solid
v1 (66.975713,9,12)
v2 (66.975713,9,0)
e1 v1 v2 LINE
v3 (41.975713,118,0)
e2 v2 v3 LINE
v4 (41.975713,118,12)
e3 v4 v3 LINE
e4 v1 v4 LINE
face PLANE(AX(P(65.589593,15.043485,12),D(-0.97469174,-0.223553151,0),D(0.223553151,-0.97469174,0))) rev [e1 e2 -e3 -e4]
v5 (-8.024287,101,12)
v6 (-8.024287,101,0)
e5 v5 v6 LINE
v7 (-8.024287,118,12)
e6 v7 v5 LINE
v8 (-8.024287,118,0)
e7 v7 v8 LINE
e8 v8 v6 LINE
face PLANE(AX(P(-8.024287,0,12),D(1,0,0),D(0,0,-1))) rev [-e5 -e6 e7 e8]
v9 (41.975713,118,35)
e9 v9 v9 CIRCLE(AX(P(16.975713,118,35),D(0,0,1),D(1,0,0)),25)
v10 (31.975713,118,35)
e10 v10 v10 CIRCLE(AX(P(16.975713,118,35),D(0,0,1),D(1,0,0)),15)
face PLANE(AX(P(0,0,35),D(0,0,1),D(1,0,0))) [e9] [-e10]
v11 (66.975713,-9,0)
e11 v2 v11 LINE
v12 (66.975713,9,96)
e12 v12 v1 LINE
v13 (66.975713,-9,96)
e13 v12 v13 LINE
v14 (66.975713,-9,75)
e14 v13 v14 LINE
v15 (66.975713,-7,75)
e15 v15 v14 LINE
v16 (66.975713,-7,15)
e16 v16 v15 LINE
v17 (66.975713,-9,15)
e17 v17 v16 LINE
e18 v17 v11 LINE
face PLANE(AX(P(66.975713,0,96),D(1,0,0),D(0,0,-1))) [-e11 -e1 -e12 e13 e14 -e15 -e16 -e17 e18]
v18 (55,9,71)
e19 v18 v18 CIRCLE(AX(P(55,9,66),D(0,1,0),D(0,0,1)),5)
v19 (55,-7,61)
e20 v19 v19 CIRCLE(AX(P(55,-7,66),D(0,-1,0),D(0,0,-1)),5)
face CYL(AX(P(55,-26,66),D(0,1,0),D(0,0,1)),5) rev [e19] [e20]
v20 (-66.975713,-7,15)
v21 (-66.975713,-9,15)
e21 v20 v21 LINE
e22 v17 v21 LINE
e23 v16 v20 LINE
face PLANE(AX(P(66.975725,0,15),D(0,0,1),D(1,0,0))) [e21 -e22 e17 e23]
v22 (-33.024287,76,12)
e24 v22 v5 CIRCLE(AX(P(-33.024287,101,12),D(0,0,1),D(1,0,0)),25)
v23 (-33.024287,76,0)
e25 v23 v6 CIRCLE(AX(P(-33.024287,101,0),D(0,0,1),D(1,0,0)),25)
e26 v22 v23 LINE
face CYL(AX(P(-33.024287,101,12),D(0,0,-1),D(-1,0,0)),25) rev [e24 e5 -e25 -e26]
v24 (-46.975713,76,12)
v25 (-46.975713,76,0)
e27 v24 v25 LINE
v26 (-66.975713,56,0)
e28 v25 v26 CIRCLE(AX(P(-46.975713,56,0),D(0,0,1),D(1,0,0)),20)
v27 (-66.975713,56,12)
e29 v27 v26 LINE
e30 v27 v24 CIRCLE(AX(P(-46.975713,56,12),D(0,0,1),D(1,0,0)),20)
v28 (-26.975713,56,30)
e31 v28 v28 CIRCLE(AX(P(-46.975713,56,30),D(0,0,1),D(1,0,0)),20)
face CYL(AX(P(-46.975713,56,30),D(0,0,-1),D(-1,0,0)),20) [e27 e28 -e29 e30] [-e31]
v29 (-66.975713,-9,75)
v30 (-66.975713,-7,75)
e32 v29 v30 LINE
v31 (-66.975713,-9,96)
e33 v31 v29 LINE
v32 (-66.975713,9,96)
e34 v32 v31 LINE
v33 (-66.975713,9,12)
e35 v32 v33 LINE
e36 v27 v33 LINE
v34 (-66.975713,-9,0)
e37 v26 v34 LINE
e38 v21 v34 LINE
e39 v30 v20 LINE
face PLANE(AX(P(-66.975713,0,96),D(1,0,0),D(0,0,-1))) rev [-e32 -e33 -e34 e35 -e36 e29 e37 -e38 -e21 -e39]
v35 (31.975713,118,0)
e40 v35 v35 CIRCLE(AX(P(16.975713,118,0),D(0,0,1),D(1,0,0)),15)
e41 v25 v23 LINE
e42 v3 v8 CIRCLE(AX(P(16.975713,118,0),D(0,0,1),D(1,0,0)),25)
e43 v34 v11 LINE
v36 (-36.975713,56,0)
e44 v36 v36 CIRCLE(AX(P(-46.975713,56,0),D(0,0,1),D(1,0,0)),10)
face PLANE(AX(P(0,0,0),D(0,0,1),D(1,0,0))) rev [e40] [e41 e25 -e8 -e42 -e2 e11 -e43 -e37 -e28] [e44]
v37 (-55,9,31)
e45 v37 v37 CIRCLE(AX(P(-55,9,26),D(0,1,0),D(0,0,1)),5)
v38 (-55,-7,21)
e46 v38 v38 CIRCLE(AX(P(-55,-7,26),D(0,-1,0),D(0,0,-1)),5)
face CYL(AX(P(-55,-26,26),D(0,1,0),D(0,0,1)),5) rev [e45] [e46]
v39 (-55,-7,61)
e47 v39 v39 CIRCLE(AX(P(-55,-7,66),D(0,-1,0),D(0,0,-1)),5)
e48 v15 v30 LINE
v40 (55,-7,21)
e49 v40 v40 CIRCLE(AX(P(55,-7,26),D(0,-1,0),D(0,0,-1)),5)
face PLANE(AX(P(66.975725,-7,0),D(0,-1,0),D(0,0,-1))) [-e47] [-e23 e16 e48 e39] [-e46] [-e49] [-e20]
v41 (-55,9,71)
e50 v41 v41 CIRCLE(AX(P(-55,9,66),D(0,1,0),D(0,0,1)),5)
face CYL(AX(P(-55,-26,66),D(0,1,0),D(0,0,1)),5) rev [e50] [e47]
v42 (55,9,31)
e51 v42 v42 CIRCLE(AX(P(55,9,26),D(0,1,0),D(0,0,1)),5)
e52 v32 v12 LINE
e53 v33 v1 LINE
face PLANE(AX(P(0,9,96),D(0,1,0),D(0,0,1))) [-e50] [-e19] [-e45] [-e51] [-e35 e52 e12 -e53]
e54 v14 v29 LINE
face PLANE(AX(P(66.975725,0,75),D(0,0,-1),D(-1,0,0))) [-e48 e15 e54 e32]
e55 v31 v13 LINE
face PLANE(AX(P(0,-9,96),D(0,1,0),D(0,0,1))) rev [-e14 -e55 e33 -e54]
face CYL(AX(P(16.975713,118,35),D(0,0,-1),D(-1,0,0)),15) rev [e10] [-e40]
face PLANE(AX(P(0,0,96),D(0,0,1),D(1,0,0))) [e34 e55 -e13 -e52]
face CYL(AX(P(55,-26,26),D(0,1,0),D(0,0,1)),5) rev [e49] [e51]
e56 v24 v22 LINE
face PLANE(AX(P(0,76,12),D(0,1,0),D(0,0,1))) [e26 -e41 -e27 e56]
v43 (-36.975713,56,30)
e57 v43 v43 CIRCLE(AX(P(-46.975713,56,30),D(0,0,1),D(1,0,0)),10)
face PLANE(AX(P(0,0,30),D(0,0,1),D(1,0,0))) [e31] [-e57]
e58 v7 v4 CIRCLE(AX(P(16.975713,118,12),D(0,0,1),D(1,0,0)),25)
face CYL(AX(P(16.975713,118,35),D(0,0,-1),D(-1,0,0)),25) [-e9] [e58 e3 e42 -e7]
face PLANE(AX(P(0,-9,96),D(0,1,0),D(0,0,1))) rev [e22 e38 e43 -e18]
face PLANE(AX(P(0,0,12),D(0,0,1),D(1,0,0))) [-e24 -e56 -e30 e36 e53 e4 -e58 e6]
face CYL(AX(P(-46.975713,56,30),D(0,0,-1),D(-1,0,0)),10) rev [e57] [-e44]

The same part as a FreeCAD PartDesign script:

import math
import FreeCAD as App
import Part
import Sketcher

V = App.Vector


def add_polygon(sketch, points):
    """Adds a closed chain of lines whose ends are joined by coincident constraints."""
    first, n = sketch.GeometryCount, len(points)
    for a, b in zip(points, points[1:] + points[:1]):
        sketch.addGeometry(Part.LineSegment(App.Vector(*a, 0), App.Vector(*b, 0)), False)
    for i in range(n):
        sketch.addConstraint(Sketcher.Constraint("Coincident", first + i, 2, first + (i + 1) % n, 1))

doc = App.newDocument("Part")
body = doc.addObject("PartDesign::Body", "Body")

# Sketch on XY plane
sketch1 = body.newObject("Sketcher::SketchObject", "Sketch")
sketch1.AttachmentSupport = (doc.getObject("XY_Plane"), [""])
sketch1.MapMode = "FlatFace"
add_polygon(sketch1, [(-66.975713, 9), (-66.975713, -9), (66.975713, -9), (66.975713, 9)])  # lines 0-3
sketch1.addConstraint(Sketcher.Constraint("Vertical", 0))
sketch1.addConstraint(Sketcher.Constraint("Horizontal", 1))
sketch1.addConstraint(Sketcher.Constraint("Vertical", 2))
sketch1.addConstraint(Sketcher.Constraint("Horizontal", 3))
sketch1.addConstraint(Sketcher.Constraint("Symmetric", 0, 2, 2, 2, -1, 1))
sketch1.addConstraint(Sketcher.Constraint("DistanceY", 0, 2, 0, 1, 18.0))
sketch1.addConstraint(Sketcher.Constraint("DistanceX", 1, 1, 1, 2, 133.951426))
pad1 = body.newObject("PartDesign::Pad", "Pad")
pad1.Profile = sketch1
pad1.Length = 96

# Sketch on XY plane
sketch2 = body.newObject("Sketcher::SketchObject", "Sketch001")
sketch2.AttachmentSupport = (doc.getObject("XY_Plane"), [""])
sketch2.MapMode = "FlatFace"
sketch2.addGeometry(Part.LineSegment(V(-66.975713, 9, 0), V(66.975713, 9, 0)), False)
sketch2.addGeometry(Part.LineSegment(V(66.975713, 9, 0), V(41.975713, 118, 0)), False)
sketch2.addGeometry(Part.ArcOfCircle(Part.Circle(V(16.975713, 118, 0), V(0, 0, 1), 25), math.radians(180), math.radians(360)), False)
sketch2.addGeometry(Part.LineSegment(V(-8.024287, 118, 0), V(-8.024287, 101, 0)), False)
sketch2.addGeometry(Part.ArcOfCircle(Part.Circle(V(-33.024287, 101, 0), V(0, 0, 1), 25), math.radians(-90), math.radians(0)), False)
sketch2.addGeometry(Part.LineSegment(V(-33.024287, 76, 0), V(-46.975713, 76, 0)), False)
sketch2.addGeometry(Part.ArcOfCircle(Part.Circle(V(-46.975713, 56, 0), V(0, 0, 1), 20), math.radians(0), math.radians(90)), False)
sketch2.addGeometry(Part.ArcOfCircle(Part.Circle(V(-46.975713, 56, 0), V(0, 0, 1), 20), math.radians(180), math.radians(360)), False)
sketch2.addGeometry(Part.LineSegment(V(-66.975713, 56, 0), V(-66.975713, 9, 0)), False)
sketch2.addConstraint(Sketcher.Constraint("Coincident", 0, 2, 1, 1))
sketch2.addConstraint(Sketcher.Constraint("Coincident", 1, 2, 2, 2))
sketch2.addConstraint(Sketcher.Constraint("Tangent", 2, 1, 3, 1))
sketch2.addConstraint(Sketcher.Constraint("Tangent", 3, 2, 4, 2))
sketch2.addConstraint(Sketcher.Constraint("Tangent", 4, 1, 5, 1))
sketch2.addConstraint(Sketcher.Constraint("Tangent", 5, 2, 6, 2))
sketch2.addConstraint(Sketcher.Constraint("Tangent", 6, 1, 7, 2))
sketch2.addConstraint(Sketcher.Constraint("Tangent", 7, 1, 8, 1))
sketch2.addConstraint(Sketcher.Constraint("Coincident", 8, 2, 0, 1))
sketch2.addConstraint(Sketcher.Constraint("Horizontal", 0))
sketch2.addConstraint(Sketcher.Constraint("Vertical", 3))
sketch2.addConstraint(Sketcher.Constraint("Horizontal", 5))
sketch2.addConstraint(Sketcher.Constraint("Vertical", 8))
sketch2.addConstraint(Sketcher.Constraint("Equal", 2, 4))
sketch2.addConstraint(Sketcher.Constraint("Equal", 6, 7))
sketch2.addConstraint(Sketcher.Constraint("Horizontal", 2, 3, 1, 2))
sketch2.addConstraint(Sketcher.Constraint("Horizontal", 7, 3, 6, 1))
sketch2.addConstraint(Sketcher.Constraint("Radius", 2, 25.0))
sketch2.addConstraint(Sketcher.Constraint("Radius", 6, 20.0))
sketch2.addConstraint(Sketcher.Constraint("DistanceY", 3, 2, 3, 1, 17.0))
sketch2.addConstraint(Sketcher.Constraint("DistanceY", 8, 2, 8, 1, 47.0))
sketch2.addConstraint(Sketcher.Constraint("DistanceY", -1, 1, 2, 3, 118.0))
sketch2.addConstraint(Sketcher.Constraint("DistanceX", 2, 3, 0, 2, 50.0))
sketch2.addConstraint(Sketcher.Constraint("DistanceX", 0, 1, 0, 2, 133.951426))
sketch2.addConstraint(Sketcher.Constraint("DistanceX", -1, 1, 2, 3, 16.975713))
pad2 = body.newObject("PartDesign::Pad", "Pad001")
pad2.Profile = sketch2
pad2.Length = 12

# Sketch on XY plane
sketch3 = body.newObject("Sketcher::SketchObject", "Sketch002")
sketch3.AttachmentSupport = (doc.getObject("XY_Plane"), [""])
sketch3.MapMode = "FlatFace"
sketch3.addGeometry(Part.Circle(V(-46.975713, 56, 0), V(0, 0, 1), 20), False)
sketch3.addGeometry(Part.Circle(V(-46.975713, 56, 0), V(0, 0, 1), 10), False)
sketch3.addConstraint(Sketcher.Constraint("Coincident", 1, 3, 0, 3))
sketch3.addConstraint(Sketcher.Constraint("Diameter", 0, 40.0))
sketch3.addConstraint(Sketcher.Constraint("Diameter", 1, 20.0))
sketch3.addConstraint(Sketcher.Constraint("DistanceY", -1, 1, 0, 3, 56.0))
sketch3.addConstraint(Sketcher.Constraint("DistanceX", 0, 3, -1, 1, 46.975713))
pad3 = body.newObject("PartDesign::Pad", "Pad002")
pad3.Profile = sketch3
pad3.Length = 30

# Sketch on XY plane
sketch4 = body.newObject("Sketcher::SketchObject", "Sketch003")
sketch4.AttachmentSupport = (doc.getObject("XY_Plane"), [""])
sketch4.MapMode = "FlatFace"
sketch4.addGeometry(Part.Circle(V(16.975713, 118, 0), V(0, 0, 1), 25), False)
sketch4.addGeometry(Part.Circle(V(16.975713, 118, 0), V(0, 0, 1), 15), False)
sketch4.addConstraint(Sketcher.Constraint("Coincident", 1, 3, 0, 3))
sketch4.addConstraint(Sketcher.Constraint("Diameter", 0, 50.0))
sketch4.addConstraint(Sketcher.Constraint("Diameter", 1, 30.0))
sketch4.addConstraint(Sketcher.Constraint("DistanceY", -1, 1, 0, 3, 118.0))
sketch4.addConstraint(Sketcher.Constraint("DistanceX", -1, 1, 0, 3, 16.975713))
pad4 = body.newObject("PartDesign::Pad", "Pad003")
pad4.Profile = sketch4
pad4.Length = 35

# Sketch on YZ plane
sketch5 = body.newObject("Sketcher::SketchObject", "Sketch004")
sketch5.AttachmentSupport = (doc.getObject("YZ_Plane"), [""])
sketch5.MapMode = "FlatFace"
sketch5.AttachmentOffset = App.Placement(V(0, 0, 66.975713), App.Rotation())
add_polygon(sketch5, [(-7, 75), (-9, 75), (-9, 15), (-7, 15)])  # lines 0-3
sketch5.addConstraint(Sketcher.Constraint("Horizontal", 0))
sketch5.addConstraint(Sketcher.Constraint("Vertical", 1))
sketch5.addConstraint(Sketcher.Constraint("Horizontal", 2))
sketch5.addConstraint(Sketcher.Constraint("Vertical", 3))
sketch5.addConstraint(Sketcher.Constraint("DistanceX", 0, 2, 0, 1, 2.0))
sketch5.addConstraint(Sketcher.Constraint("DistanceY", 1, 2, 1, 1, 60.0))
sketch5.addConstraint(Sketcher.Constraint("DistanceX", 0, 2, -1, 1, 9.0))
sketch5.addConstraint(Sketcher.Constraint("DistanceY", -1, 1, 0, 2, 75.0))
pocket1 = body.newObject("PartDesign::Pocket", "Pocket")
pocket1.Profile = sketch5
pocket1.Type = "ThroughAll"
pocket1.Midplane = True

# Sketch on XZ plane
sketch6 = body.newObject("Sketcher::SketchObject", "Sketch005")
sketch6.AttachmentSupport = (doc.getObject("XZ_Plane"), [""])
sketch6.MapMode = "FlatFace"
sketch6.AttachmentOffset = App.Placement(V(0, 0, -9), App.Rotation())
sketch6.addGeometry(Part.Circle(V(55, 26, 0), V(0, 0, 1), 5), False)
sketch6.addGeometry(Part.Circle(V(55, 66, 0), V(0, 0, 1), 5), False)
sketch6.addGeometry(Part.Circle(V(-55, 66, 0), V(0, 0, 1), 5), False)
sketch6.addConstraint(Sketcher.Constraint("Equal", 0, 1))
sketch6.addConstraint(Sketcher.Constraint("Equal", 1, 2))
sketch6.addConstraint(Sketcher.Constraint("Symmetric", 1, 3, 2, 3, -2))
sketch6.addConstraint(Sketcher.Constraint("Vertical", 0, 3, 1, 3))
sketch6.addConstraint(Sketcher.Constraint("Diameter", 0, 10.0))
sketch6.addConstraint(Sketcher.Constraint("DistanceX", -1, 1, 0, 3, 55.0))
sketch6.addConstraint(Sketcher.Constraint("DistanceY", -1, 1, 0, 3, 26.0))
sketch6.addConstraint(Sketcher.Constraint("DistanceY", -1, 1, 1, 3, 66.0))
pocket2 = body.newObject("PartDesign::Pocket", "Pocket001")
pocket2.Profile = sketch6
pocket2.Length = 35
pocket2.Reversed = True

# Sketch on XZ plane
sketch7 = body.newObject("Sketcher::SketchObject", "Sketch006")
sketch7.AttachmentSupport = (doc.getObject("XZ_Plane"), [""])
sketch7.MapMode = "FlatFace"
sketch7.AttachmentOffset = App.Placement(V(0, 0, -9), App.Rotation())
sketch7.addGeometry(Part.Circle(V(-55, 26, 0), V(0, 0, 1), 5), False)
sketch7.addConstraint(Sketcher.Constraint("Diameter", 0, 10.0))
sketch7.addConstraint(Sketcher.Constraint("DistanceX", 0, 3, -1, 1, 55.0))
sketch7.addConstraint(Sketcher.Constraint("DistanceY", -1, 1, 0, 3, 26.0))
pocket3 = body.newObject("PartDesign::Pocket", "Pocket002")
pocket3.Profile = sketch7
pocket3.Length = 35
pocket3.Reversed = True

doc.recompute()
